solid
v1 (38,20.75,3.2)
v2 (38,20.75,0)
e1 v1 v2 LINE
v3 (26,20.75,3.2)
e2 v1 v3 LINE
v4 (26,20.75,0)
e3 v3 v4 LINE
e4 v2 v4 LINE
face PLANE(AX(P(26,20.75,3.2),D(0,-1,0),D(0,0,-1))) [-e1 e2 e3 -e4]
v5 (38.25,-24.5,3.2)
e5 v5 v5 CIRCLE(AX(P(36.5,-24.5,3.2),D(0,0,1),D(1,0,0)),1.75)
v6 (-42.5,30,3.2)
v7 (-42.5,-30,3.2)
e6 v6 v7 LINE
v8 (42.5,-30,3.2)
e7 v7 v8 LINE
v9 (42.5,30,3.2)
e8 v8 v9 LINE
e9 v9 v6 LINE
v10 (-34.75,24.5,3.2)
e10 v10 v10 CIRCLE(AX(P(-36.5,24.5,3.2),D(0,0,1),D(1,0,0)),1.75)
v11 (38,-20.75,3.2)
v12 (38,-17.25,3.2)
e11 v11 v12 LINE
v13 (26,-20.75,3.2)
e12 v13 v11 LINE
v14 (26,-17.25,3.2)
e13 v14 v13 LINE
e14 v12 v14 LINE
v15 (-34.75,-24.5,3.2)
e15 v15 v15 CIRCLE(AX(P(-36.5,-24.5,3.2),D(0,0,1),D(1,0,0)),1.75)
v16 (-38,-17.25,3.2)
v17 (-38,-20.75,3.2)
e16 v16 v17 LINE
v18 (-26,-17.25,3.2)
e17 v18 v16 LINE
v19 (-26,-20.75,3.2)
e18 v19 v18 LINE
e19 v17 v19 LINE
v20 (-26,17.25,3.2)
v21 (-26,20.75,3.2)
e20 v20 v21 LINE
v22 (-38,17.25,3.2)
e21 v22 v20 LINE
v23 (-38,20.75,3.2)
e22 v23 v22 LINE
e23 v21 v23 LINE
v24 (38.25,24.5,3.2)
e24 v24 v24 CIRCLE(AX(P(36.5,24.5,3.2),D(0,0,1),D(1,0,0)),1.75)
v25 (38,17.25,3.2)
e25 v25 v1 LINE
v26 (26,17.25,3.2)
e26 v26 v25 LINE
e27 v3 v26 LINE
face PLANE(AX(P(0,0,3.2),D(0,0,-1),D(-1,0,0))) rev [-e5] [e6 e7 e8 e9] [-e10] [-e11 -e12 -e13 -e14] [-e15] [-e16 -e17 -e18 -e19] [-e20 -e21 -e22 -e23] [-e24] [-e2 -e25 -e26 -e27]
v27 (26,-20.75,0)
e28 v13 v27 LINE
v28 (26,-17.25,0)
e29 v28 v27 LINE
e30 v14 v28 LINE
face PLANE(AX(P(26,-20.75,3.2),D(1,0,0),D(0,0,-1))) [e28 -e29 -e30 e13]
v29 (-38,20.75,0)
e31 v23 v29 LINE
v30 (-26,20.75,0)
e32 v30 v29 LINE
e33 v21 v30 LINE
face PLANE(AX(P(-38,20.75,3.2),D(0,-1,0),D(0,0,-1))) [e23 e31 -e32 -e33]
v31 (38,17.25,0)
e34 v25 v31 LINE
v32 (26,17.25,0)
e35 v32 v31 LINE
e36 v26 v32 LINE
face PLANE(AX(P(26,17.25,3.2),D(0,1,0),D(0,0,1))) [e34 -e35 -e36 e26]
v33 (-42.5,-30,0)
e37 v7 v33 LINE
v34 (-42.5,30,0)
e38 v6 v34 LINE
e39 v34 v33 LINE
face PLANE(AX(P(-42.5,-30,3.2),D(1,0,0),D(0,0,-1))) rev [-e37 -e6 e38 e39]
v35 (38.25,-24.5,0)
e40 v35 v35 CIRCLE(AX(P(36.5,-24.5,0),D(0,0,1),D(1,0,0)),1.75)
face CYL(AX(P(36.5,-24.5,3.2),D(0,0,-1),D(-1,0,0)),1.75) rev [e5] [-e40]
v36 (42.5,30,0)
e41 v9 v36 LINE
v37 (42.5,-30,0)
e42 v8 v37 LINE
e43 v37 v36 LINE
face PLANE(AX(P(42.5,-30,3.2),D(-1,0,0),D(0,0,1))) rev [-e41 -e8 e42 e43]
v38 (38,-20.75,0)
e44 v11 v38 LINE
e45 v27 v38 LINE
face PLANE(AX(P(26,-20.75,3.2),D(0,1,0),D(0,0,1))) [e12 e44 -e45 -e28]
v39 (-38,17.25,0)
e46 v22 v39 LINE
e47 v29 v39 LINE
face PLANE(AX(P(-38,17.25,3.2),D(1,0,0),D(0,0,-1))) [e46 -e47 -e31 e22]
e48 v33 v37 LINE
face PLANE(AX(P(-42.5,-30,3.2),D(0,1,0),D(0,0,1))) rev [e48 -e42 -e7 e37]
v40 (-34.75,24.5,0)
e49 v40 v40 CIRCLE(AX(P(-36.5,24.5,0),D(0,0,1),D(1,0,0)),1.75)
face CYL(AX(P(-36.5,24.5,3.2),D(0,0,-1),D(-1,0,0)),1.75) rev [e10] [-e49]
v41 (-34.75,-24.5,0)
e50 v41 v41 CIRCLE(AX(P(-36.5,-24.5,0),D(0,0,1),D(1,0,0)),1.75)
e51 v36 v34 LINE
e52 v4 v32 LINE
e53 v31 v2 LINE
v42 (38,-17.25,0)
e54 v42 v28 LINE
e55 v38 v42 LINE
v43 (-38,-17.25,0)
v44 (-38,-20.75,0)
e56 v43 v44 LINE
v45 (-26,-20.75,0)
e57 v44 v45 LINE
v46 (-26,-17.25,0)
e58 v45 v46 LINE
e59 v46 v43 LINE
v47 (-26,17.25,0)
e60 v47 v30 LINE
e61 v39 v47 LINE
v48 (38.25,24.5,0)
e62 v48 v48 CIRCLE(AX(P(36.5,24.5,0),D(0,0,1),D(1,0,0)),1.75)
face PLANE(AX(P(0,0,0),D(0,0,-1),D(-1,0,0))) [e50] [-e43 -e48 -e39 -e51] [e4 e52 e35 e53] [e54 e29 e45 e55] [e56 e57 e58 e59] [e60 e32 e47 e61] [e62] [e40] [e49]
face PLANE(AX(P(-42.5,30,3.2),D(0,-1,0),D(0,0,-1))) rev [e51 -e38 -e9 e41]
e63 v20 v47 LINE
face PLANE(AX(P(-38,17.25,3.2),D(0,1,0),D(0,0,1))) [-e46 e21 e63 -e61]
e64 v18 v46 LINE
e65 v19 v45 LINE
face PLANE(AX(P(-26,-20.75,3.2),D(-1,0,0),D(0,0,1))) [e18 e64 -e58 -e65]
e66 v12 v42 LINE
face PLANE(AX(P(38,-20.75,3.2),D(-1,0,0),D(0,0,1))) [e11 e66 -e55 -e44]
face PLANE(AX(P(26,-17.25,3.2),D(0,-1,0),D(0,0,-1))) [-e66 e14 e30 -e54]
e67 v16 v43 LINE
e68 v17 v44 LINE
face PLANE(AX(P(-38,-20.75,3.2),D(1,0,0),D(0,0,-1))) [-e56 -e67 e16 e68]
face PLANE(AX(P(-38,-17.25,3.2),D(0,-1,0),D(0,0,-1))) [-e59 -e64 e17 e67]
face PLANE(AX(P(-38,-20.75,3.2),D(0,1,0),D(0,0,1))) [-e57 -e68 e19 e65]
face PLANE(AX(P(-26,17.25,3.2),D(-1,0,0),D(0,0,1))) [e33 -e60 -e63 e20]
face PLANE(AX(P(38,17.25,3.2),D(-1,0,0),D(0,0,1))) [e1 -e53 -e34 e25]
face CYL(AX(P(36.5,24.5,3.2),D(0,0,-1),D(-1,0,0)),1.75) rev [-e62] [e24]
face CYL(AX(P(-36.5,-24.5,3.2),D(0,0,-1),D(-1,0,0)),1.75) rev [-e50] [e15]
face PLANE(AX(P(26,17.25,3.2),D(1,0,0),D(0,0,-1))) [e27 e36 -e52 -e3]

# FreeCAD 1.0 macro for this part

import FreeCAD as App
import Part
import Sketcher
from FreeCAD import Vector

doc = App.newDocument("Part")
body = doc.addObject("PartDesign::Body", "Body")

sketch1 = body.newObject("Sketcher::SketchObject", "Sketch")
sketch1.AttachmentSupport = (doc.getObject("XY_Plane"), [""])
sketch1.MapMode = "FlatFace"
sketch1.addGeometry([
    Part.LineSegment(Vector(-42.5, 30, 0), Vector(-42.5, -30, 0)),
    Part.LineSegment(Vector(-42.5, -30, 0), Vector(42.5, -30, 0)),
    Part.LineSegment(Vector(42.5, -30, 0), Vector(42.5, 30, 0)),
    Part.LineSegment(Vector(42.5, 30, 0), Vector(-42.5, 30, 0)),
    Part.Circle(Vector(-36.5, -24.5, 0), Vector(0, 0, 1), 1.8),
    Part.LineSegment(Vector(-26, -20.8, 0), Vector(-38, -20.8, 0)),
    Part.LineSegment(Vector(-38, -20.8, 0), Vector(-38, -17.2, 0)),
    Part.LineSegment(Vector(-38, -17.2, 0), Vector(-26, -17.2, 0)),
    Part.LineSegment(Vector(-26, -17.2, 0), Vector(-26, -20.8, 0)),
    Part.Circle(Vector(36.5, -24.5, 0), Vector(0, 0, 1), 1.8),
    Part.LineSegment(Vector(38, -20.8, 0), Vector(26, -20.8, 0)),
    Part.LineSegment(Vector(26, -20.8, 0), Vector(26, -17.2, 0)),
    Part.LineSegment(Vector(26, -17.2, 0), Vector(38, -17.2, 0)),
    Part.LineSegment(Vector(38, -17.2, 0), Vector(38, -20.8, 0)),
    Part.LineSegment(Vector(-26, 17.2, 0), Vector(-38, 17.2, 0)),
    Part.LineSegment(Vector(-38, 17.2, 0), Vector(-38, 20.8, 0)),
    Part.LineSegment(Vector(-38, 20.8, 0), Vector(-26, 20.8, 0)),
    Part.LineSegment(Vector(-26, 20.8, 0), Vector(-26, 17.2, 0)),
    Part.Circle(Vector(-36.5, 24.5, 0), Vector(0, 0, 1), 1.8),
    Part.LineSegment(Vector(38, 17.2, 0), Vector(26, 17.2, 0)),
    Part.LineSegment(Vector(26, 17.2, 0), Vector(26, 20.8, 0)),
    Part.LineSegment(Vector(26, 20.8, 0), Vector(38, 20.8, 0)),
    Part.LineSegment(Vector(38, 20.8, 0), Vector(38, 17.2, 0)),
    Part.Circle(Vector(36.5, 24.5, 0), Vector(0, 0, 1), 1.8),
], False)
sketch1.addConstraint([
    Sketcher.Constraint("Coincident", 0, 2, 1, 1),
    Sketcher.Constraint("Coincident", 1, 2, 2, 1),
    Sketcher.Constraint("Coincident", 2, 2, 3, 1),
    Sketcher.Constraint("Coincident", 3, 2, 0, 1),
    Sketcher.Constraint("Coincident", 5, 2, 6, 1),
    Sketcher.Constraint("Coincident", 6, 2, 7, 1),
    Sketcher.Constraint("Coincident", 7, 2, 8, 1),
    Sketcher.Constraint("Coincident", 8, 2, 5, 1),
    Sketcher.Constraint("Coincident", 10, 2, 11, 1),
    Sketcher.Constraint("Coincident", 11, 2, 12, 1),
    Sketcher.Constraint("Coincident", 12, 2, 13, 1),
    Sketcher.Constraint("Coincident", 13, 2, 10, 1),
    Sketcher.Constraint("Coincident", 14, 2, 15, 1),
    Sketcher.Constraint("Coincident", 15, 2, 16, 1),
    Sketcher.Constraint("Coincident", 16, 2, 17, 1),
    Sketcher.Constraint("Coincident", 17, 2, 14, 1),
    Sketcher.Constraint("Coincident", 19, 2, 20, 1),
    Sketcher.Constraint("Coincident", 20, 2, 21, 1),
    Sketcher.Constraint("Coincident", 21, 2, 22, 1),
    Sketcher.Constraint("Coincident", 22, 2, 19, 1),
    Sketcher.Constraint("Vertical", 0),
    Sketcher.Constraint("Horizontal", 1),
    Sketcher.Constraint("Vertical", 2),
    Sketcher.Constraint("Horizontal", 3),
    Sketcher.Constraint("Horizontal", 5),
    Sketcher.Constraint("Vertical", 6),
    Sketcher.Constraint("Horizontal", 7),
    Sketcher.Constraint("Vertical", 8),
    Sketcher.Constraint("Horizontal", 10),
    Sketcher.Constraint("Vertical", 11),
    Sketcher.Constraint("Horizontal", 12),
    Sketcher.Constraint("Vertical", 13),
    Sketcher.Constraint("Horizontal", 14),
    Sketcher.Constraint("Vertical", 15),
    Sketcher.Constraint("Horizontal", 16),
    Sketcher.Constraint("Vertical", 17),
    Sketcher.Constraint("Horizontal", 19),
    Sketcher.Constraint("Vertical", 20),
    Sketcher.Constraint("Horizontal", 21),
    Sketcher.Constraint("Vertical", 22),
    Sketcher.Constraint("Equal", 4, 9),
    Sketcher.Constraint("Equal", 9, 18),
    Sketcher.Constraint("Equal", 18, 23),
    Sketcher.Constraint("Symmetric", 9, 3, 18, 3, -1, 1),
    Sketcher.Constraint("Symmetric", 4, 3, 23, 3, -1, 1),
    Sketcher.Constraint("Symmetric", 0, 2, 2, 2, -1, 1),
    Sketcher.Constraint("Symmetric", 12, 2, 14, 2, -1, 1),
    Sketcher.Constraint("Symmetric", 10, 2, 16, 2, -1, 1),
    Sketcher.Constraint("Symmetric", 7, 2, 19, 2, -1, 1),
    Sketcher.Constraint("Symmetric", 5, 2, 21, 2, -1, 1),
    Sketcher.Constraint("Symmetric", 4, 3, 9, 3, -2),
    Sketcher.Constraint("Symmetric", 8, 2, 10, 2, -2),
    Sketcher.Constraint("Symmetric", 6, 2, 12, 2, -2),
    Sketcher.Constraint("Diameter", 4, 3.5),
    Sketcher.Constraint("DistanceX", 1, 1, 1, 2, 85.0),
    Sketcher.Constraint("DistanceX", 5, 2, 5, 1, 12.0),
    Sketcher.Constraint("DistanceY", 0, 2, 0, 1, 60.0),
    Sketcher.Constraint("DistanceY", 6, 1, 6, 2, 3.5),
    Sketcher.Constraint("DistanceX", 5, 2, -1, 1, 38.0),
    Sketcher.Constraint("DistanceX", 4, 3, 9, 3, 73.0),
    Sketcher.Constraint("DistanceY", 4, 3, 18, 3, 49.0),
    Sketcher.Constraint("DistanceY", 5, 2, 14, 2, 38.0),
])
pad1 = body.newObject("PartDesign::Pad", "Pad")
pad1.Profile = sketch1
pad1.Length = 3.2

doc.recompute()
